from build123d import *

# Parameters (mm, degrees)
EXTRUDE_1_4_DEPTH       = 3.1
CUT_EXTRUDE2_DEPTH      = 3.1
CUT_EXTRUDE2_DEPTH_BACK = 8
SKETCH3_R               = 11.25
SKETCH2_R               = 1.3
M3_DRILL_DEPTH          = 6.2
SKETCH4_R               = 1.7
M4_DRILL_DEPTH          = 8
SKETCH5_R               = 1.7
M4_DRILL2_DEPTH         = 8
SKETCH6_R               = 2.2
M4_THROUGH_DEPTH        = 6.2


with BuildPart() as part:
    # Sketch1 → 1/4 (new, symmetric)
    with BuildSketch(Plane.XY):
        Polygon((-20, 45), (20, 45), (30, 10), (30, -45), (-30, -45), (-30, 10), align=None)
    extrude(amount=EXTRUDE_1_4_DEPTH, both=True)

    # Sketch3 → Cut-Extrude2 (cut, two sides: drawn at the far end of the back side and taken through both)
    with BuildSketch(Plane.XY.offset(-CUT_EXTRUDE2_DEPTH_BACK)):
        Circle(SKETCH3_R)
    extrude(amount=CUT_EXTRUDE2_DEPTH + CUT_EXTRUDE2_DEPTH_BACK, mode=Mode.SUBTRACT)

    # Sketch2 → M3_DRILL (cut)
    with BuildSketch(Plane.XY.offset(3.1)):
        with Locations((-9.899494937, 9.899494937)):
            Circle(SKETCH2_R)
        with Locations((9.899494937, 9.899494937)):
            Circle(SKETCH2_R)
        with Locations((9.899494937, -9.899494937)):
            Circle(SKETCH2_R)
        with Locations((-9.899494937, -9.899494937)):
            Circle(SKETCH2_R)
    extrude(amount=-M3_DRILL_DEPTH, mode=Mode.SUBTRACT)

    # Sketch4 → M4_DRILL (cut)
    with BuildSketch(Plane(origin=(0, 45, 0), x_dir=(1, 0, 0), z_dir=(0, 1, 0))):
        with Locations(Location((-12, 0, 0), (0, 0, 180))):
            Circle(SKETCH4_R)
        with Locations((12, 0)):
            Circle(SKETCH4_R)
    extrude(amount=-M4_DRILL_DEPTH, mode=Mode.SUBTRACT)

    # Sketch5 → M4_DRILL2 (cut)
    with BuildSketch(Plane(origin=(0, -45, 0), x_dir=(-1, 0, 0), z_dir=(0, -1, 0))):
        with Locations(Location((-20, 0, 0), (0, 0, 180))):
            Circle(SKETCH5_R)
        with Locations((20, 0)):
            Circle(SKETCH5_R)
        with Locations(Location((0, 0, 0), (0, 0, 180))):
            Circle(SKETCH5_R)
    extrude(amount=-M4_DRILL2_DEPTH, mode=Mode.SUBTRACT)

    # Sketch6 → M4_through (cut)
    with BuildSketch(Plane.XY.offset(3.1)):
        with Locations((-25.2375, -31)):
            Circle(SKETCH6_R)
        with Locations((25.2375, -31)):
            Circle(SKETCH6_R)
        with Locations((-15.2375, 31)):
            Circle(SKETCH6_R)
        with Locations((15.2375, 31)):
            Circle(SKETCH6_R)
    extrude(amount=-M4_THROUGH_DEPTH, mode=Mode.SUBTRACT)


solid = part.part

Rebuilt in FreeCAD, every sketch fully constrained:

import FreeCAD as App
import Part
import Sketcher
from FreeCAD import Vector

doc = App.newDocument("Part")
body = doc.addObject("PartDesign::Body", "Body")

sketch1 = doc.addObject("Sketcher::SketchObject", "Sketch")
body.addObject(sketch1)
sketch1.AttachmentSupport = (doc.XY_Plane, [""])
sketch1.MapMode = "FlatFace"
sketch1.addGeometry([
    Part.LineSegment(Vector(20, 45, 0), Vector(-20, 45, 0)),
    Part.LineSegment(Vector(-20, 45, 0), Vector(-30, 10, 0)),
    Part.LineSegment(Vector(-30, 10, 0), Vector(-30, -45, 0)),
    Part.LineSegment(Vector(-30, -45, 0), Vector(30, -45, 0)),
    Part.LineSegment(Vector(30, -45, 0), Vector(30, 10, 0)),
    Part.LineSegment(Vector(30, 10, 0), Vector(20, 45, 0)),
], False)
sketch1.addConstraint([
    Sketcher.Constraint("Coincident", 0, 2, 1, 1),
    Sketcher.Constraint("Coincident", 1, 2, 2, 1),
    Sketcher.Constraint("Coincident", 2, 2, 3, 1),
    Sketcher.Constraint("Coincident", 3, 2, 4, 1),
    Sketcher.Constraint("Coincident", 4, 2, 5, 1),
    Sketcher.Constraint("Coincident", 5, 2, 0, 1),
    Sketcher.Constraint("Horizontal", 0),
    Sketcher.Constraint("Vertical", 2),
    Sketcher.Constraint("Horizontal", 3),
    Sketcher.Constraint("Vertical", 4),
    Sketcher.Constraint("Symmetric", 1, 2, 4, 2, -2),
    Sketcher.Constraint("Equal", 1, 5),
    Sketcher.Constraint("DistanceX", 0, 2, 0, 1, 40.0),
    Sketcher.Constraint("DistanceX", 3, 1, 3, 2, 60.0),
    Sketcher.Constraint("DistanceY", 2, 2, 2, 1, 55.0),
    Sketcher.Constraint("DistanceY", -1, 1, 0, 2, 45.0),
    Sketcher.Constraint("DistanceY", -1, 1, 1, 2, 10.0),
])
pad1 = doc.addObject("PartDesign::Pad", "Pad")
body.addObject(pad1)
pad1.Profile = sketch1
pad1.Length = 6.2
pad1.Midplane = True

sketch2 = doc.addObject("Sketcher::SketchObject", "Sketch001")
body.addObject(sketch2)
sketch2.AttachmentSupport = (doc.XY_Plane, [""])
sketch2.MapMode = "FlatFace"
sketch2.addGeometry(Part.Circle(Vector(0, 0, 0), Vector(0, 0, 1), 11.25), False)
sketch2.addConstraint([
    Sketcher.Constraint("Coincident", 0, 3, -1, 1),
    Sketcher.Constraint("Diameter", 0, 22.5),
])
pocket1 = doc.addObject("PartDesign::Pocket", "Pocket")
body.addObject(pocket1)
pocket1.Profile = sketch2
pocket1.Type = "ThroughAll"
pocket1.Midplane = True

sketch3 = doc.addObject("Sketcher::SketchObject", "Sketch002")
body.addObject(sketch3)
sketch3.AttachmentSupport = (doc.XY_Plane, [""])
sketch3.MapMode = "FlatFace"
sketch3.AttachmentOffset = App.Placement(Vector(0, 0, 3.1), App.Rotation())
sketch3.addGeometry([
    Part.Circle(Vector(-9.899495, 9.899495, 0), Vector(0, 0, 1), 1.3),
    Part.Circle(Vector(9.899495, 9.899495, 0), Vector(0, 0, 1), 1.3),
    Part.Circle(Vector(9.899495, -9.899495, 0), Vector(0, 0, 1), 1.3),
    Part.Circle(Vector(-9.899495, -9.899495, 0), Vector(0, 0, 1), 1.3),
], False)
sketch3.addConstraint([
    Sketcher.Constraint("Equal", 0, 1),
    Sketcher.Constraint("Equal", 1, 2),
    Sketcher.Constraint("Equal", 2, 3),
    Sketcher.Constraint("Symmetric", 0, 3, 2, 3, -1, 1),
    Sketcher.Constraint("Symmetric", 1, 3, 3, 3, -1, 1),
    Sketcher.Constraint("Symmetric", 0, 3, 1, 3, -2),
    Sketcher.Constraint("Diameter", 0, 2.6),
    Sketcher.Constraint("DistanceX", 0, 3, 1, 3, 19.79899),
    Sketcher.Constraint("DistanceY", 2, 3, 1, 3, 19.79899),
])
pocket2 = doc.addObject("PartDesign::Pocket", "Pocket001")
body.addObject(pocket2)
pocket2.Profile = sketch3
pocket2.Length = 6.2

sketch4 = doc.addObject("Sketcher::SketchObject", "Sketch003")
body.addObject(sketch4)
sketch4.AttachmentSupport = (doc.XZ_Plane, [""])
sketch4.MapMode = "FlatFace"
sketch4.AttachmentOffset = App.Placement(Vector(0, 0, -45), App.Rotation())
sketch4.addGeometry([
    Part.Circle(Vector(-12, 0, 0), Vector(0, 0, 1), 1.7),
    Part.Circle(Vector(12, 0, 0), Vector(0, 0, 1), 1.7),
], False)
sketch4.addConstraint([
    Sketcher.Constraint("Equal", 0, 1),
    Sketcher.Constraint("Symmetric", 0, 3, 1, 3, -1, 1),
    Sketcher.Constraint("PointOnObject", 0, 3, -1),
    Sketcher.Constraint("Diameter", 0, 3.4),
    Sketcher.Constraint("DistanceX", 0, 3, -1, 1, 12.0),
])
pocket3 = doc.addObject("PartDesign::Pocket", "Pocket002")
body.addObject(pocket3)
pocket3.Profile = sketch4
pocket3.Length = 8
pocket3.Reversed = True

sketch5 = doc.addObject("Sketcher::SketchObject", "Sketch004")
body.addObject(sketch5)
sketch5.AttachmentSupport = (doc.XZ_Plane, [""])
sketch5.MapMode = "FlatFace"
sketch5.AttachmentOffset = App.Placement(Vector(0, 0, 45), App.Rotation())
sketch5.addGeometry([
    Part.Circle(Vector(20, 0, 0), Vector(0, 0, 1), 1.7),
    Part.Circle(Vector(-20, 0, 0), Vector(0, 0, 1), 1.7),
    Part.Circle(Vector(0, 0, 0), Vector(0, 0, 1), 1.7),
], False)
sketch5.addConstraint([
    Sketcher.Constraint("Coincident", 2, 3, -1, 1),
    Sketcher.Constraint("Equal", 0, 1),
    Sketcher.Constraint("Equal", 1, 2),
    Sketcher.Constraint("Symmetric", 0, 3, 1, 3, -1, 1),
    Sketcher.Constraint("PointOnObject", 0, 3, -1),
    Sketcher.Constraint("Diameter", 0, 3.4),
    Sketcher.Constraint("DistanceX", -1, 1, 0, 3, 20.0),
])
pocket4 = doc.addObject("PartDesign::Pocket", "Pocket003")
body.addObject(pocket4)
pocket4.Profile = sketch5
pocket4.Length = 8

sketch6 = doc.addObject("Sketcher::SketchObject", "Sketch005")
body.addObject(sketch6)
sketch6.AttachmentSupport = (doc.XY_Plane, [""])
sketch6.MapMode = "FlatFace"
sketch6.AttachmentOffset = App.Placement(Vector(0, 0, 3.1), App.Rotation())
sketch6.addGeometry([
    Part.Circle(Vector(-25.2375, -31, 0), Vector(0, 0, 1), 2.2),
    Part.Circle(Vector(25.2375, -31, 0), Vector(0, 0, 1), 2.2),
    Part.Circle(Vector(-15.2375, 31, 0), Vector(0, 0, 1), 2.2),
    Part.Circle(Vector(15.2375, 31, 0), Vector(0, 0, 1), 2.2),
], False)
sketch6.addConstraint([
    Sketcher.Constraint("Equal", 0, 1),
    Sketcher.Constraint("Equal", 1, 2),
    Sketcher.Constraint("Equal", 2, 3),
    Sketcher.Constraint("Symmetric", 0, 3, 1, 3, -2),
    Sketcher.Constraint("Symmetric", 2, 3, 3, 3, -2),
    Sketcher.Constraint("Diameter", 0, 4.4),
    Sketcher.Constraint("DistanceY", 0, 3, -1, 1, 31.0),
    Sketcher.Constraint("DistanceY", -1, 1, 2, 3, 31.0),
    Sketcher.Constraint("DistanceX", 0, 3, 2, 3, 10.0),
    Sketcher.Constraint("DistanceX", 0, 3, 1, 3, 50.475),
])
pocket5 = doc.addObject("PartDesign::Pocket", "Pocket004")
body.addObject(pocket5)
pocket5.Profile = sketch6
pocket5.Length = 6.2

doc.recompute()
